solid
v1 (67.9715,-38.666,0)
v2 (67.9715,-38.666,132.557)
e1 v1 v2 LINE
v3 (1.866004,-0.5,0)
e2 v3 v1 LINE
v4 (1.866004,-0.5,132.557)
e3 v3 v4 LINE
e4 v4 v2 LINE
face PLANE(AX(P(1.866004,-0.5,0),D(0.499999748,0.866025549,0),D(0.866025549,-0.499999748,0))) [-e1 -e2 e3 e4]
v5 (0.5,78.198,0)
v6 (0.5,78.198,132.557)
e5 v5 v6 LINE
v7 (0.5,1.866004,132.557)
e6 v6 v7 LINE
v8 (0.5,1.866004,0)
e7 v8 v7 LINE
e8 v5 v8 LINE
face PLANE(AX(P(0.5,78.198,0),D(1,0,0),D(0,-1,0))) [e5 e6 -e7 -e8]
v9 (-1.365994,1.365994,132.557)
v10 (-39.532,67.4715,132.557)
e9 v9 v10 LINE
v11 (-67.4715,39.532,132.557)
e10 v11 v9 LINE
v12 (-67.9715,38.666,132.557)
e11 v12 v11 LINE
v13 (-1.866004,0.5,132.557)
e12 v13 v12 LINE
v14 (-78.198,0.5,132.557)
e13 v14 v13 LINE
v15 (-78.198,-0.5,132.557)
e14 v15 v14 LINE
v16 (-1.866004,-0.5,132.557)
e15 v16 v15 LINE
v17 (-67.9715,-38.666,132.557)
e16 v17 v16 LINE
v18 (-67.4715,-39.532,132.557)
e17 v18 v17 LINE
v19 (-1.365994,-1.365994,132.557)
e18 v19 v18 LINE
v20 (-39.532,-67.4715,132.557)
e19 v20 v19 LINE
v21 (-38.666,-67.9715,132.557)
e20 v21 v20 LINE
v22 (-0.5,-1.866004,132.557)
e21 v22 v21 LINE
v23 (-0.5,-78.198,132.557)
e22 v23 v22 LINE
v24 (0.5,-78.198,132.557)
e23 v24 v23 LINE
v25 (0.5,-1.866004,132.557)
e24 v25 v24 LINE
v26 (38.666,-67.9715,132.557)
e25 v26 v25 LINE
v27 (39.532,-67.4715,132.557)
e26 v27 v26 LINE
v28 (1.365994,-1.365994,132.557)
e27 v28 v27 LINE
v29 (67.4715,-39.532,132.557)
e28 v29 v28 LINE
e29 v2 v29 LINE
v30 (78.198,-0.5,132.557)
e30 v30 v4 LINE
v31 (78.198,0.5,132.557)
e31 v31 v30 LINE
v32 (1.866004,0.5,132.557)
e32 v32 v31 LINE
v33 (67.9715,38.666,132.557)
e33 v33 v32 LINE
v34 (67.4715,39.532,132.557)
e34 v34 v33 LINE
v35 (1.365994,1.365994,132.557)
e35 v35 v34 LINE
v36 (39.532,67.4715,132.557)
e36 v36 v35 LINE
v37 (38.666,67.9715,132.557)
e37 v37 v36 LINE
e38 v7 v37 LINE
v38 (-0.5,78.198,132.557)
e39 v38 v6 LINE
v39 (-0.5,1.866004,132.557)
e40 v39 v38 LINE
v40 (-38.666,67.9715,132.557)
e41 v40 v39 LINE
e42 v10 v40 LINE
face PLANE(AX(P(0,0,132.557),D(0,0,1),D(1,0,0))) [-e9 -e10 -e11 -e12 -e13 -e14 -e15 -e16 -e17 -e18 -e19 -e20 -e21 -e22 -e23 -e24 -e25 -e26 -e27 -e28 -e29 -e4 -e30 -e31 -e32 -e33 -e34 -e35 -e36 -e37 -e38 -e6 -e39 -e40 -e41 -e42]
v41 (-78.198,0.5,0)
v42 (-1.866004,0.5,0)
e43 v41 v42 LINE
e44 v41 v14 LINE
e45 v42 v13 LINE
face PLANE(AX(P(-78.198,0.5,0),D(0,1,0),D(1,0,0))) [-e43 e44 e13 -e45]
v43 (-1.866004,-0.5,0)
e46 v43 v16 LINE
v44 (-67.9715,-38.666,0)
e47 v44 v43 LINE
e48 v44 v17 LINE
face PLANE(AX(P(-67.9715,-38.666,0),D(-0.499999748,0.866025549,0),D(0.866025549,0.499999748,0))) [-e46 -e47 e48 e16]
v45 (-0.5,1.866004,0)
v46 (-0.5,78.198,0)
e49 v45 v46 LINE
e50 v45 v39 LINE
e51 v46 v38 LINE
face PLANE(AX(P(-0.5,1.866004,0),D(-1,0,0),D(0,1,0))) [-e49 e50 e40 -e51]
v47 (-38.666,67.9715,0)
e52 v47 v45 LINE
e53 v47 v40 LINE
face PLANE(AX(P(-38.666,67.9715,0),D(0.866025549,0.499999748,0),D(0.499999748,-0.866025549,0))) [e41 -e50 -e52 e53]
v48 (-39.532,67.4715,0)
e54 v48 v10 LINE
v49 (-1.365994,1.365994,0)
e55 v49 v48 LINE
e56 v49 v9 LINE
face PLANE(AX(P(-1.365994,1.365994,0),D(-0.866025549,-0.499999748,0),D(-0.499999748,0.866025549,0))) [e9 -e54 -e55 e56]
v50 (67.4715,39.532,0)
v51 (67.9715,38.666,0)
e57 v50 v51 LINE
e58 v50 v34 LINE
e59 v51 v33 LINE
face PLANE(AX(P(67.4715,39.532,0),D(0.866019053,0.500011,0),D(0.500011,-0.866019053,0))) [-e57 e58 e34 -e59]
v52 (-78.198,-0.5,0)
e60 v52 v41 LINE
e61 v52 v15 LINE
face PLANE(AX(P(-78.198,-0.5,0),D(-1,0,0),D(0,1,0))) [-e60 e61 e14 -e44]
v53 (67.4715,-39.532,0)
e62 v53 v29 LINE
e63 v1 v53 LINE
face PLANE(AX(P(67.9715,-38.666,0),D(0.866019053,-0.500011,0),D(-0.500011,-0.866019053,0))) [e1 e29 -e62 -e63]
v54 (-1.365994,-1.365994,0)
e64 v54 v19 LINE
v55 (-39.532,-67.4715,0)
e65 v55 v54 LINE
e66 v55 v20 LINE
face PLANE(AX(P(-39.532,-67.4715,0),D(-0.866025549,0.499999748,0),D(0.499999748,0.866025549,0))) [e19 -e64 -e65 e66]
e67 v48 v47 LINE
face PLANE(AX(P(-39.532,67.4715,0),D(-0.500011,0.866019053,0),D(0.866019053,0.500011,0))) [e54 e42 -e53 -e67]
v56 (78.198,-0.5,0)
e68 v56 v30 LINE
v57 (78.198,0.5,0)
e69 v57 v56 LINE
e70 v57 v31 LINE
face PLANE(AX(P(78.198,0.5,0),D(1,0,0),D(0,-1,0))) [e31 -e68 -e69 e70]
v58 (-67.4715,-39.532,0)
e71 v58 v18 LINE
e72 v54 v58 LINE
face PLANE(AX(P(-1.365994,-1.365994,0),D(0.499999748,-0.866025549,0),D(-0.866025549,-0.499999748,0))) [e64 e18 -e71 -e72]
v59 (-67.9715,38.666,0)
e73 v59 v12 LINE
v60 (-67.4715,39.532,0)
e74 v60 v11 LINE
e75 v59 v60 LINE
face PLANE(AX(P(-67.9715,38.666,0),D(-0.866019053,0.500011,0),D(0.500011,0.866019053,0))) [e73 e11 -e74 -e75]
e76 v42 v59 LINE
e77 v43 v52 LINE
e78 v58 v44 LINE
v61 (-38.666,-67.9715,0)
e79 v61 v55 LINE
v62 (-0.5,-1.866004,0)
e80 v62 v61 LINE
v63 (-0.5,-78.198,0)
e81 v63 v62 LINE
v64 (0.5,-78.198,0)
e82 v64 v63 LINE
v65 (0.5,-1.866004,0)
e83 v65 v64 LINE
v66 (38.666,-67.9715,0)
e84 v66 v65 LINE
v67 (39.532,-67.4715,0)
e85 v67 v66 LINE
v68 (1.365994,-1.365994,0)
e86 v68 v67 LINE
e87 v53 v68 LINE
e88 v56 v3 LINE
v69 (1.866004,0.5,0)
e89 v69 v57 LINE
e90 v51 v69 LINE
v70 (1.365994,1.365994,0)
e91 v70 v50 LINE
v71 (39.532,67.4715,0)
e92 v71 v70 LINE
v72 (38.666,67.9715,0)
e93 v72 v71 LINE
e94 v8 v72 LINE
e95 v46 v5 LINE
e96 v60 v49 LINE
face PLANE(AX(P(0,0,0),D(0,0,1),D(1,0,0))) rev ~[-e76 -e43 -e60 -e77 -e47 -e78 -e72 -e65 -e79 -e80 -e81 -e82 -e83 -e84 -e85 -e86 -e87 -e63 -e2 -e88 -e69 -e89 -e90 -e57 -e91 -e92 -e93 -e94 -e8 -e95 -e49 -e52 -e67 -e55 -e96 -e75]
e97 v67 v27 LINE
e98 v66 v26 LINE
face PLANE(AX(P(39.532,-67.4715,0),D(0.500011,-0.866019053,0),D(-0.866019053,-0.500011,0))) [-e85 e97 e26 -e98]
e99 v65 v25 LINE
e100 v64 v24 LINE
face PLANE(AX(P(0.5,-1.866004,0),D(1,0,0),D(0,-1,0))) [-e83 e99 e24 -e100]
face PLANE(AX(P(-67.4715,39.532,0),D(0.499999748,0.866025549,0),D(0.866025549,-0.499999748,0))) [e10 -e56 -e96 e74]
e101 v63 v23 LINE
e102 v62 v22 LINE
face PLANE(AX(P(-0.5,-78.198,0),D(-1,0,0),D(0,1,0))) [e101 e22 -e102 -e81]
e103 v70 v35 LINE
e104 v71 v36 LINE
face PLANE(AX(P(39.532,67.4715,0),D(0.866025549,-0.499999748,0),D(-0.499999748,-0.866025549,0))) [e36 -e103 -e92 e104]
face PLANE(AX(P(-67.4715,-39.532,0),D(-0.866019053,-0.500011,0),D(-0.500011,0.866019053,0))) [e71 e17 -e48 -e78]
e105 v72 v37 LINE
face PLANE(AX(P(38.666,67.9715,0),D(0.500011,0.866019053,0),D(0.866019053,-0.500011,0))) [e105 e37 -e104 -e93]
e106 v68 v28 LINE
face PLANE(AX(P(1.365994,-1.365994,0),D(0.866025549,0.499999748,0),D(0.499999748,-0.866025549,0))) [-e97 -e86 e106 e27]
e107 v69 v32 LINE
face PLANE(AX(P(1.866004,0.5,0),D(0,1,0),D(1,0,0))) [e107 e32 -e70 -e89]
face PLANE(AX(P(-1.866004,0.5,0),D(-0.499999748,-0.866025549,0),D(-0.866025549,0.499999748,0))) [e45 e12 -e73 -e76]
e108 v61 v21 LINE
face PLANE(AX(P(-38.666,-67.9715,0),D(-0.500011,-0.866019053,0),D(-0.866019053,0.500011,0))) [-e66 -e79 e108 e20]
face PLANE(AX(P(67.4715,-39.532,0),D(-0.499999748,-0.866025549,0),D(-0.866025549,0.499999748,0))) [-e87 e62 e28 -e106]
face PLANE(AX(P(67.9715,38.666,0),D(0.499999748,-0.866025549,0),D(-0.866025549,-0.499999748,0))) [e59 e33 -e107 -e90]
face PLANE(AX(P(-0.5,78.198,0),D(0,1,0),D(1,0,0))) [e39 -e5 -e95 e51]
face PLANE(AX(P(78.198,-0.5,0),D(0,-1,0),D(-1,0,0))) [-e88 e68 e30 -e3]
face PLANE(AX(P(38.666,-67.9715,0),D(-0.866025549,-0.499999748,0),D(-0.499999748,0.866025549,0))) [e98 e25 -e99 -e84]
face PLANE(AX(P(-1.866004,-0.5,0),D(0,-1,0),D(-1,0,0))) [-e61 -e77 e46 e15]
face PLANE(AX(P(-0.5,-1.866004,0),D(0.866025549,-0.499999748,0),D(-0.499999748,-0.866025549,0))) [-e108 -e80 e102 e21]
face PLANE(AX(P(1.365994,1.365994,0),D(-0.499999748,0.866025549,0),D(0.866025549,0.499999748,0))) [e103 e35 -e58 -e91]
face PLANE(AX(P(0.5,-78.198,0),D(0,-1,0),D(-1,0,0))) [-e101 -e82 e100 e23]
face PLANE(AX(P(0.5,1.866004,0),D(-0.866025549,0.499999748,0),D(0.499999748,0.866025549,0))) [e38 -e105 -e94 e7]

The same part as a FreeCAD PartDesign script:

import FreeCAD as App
import Part
import Sketcher

V = App.Vector
Q = App.Units.Quantity

doc = App.newDocument("Part")
body = doc.addObject("PartDesign::Body", "Body")

sketch1 = doc.addObject("Sketcher::SketchObject", "Sketch")
body.addObject(sketch1)
sketch1.AttachmentSupport = (doc.XY_Plane, [""])
sketch1.MapMode = "FlatFace"
sketch1.addGeometry(Part.LineSegment(V(-1.9, 0.5, 0), V(-78.2, 0.5, 0)), False)
sketch1.addGeometry(Part.LineSegment(V(-78.2, 0.5, 0), V(-78.2, -0.5, 0)), False)
sketch1.addGeometry(Part.LineSegment(V(-78.2, -0.5, 0), V(-1.9, -0.5, 0)), False)
sketch1.addGeometry(Part.LineSegment(V(-1.9, -0.5, 0), V(-68, -38.7, 0)), False)
sketch1.addGeometry(Part.LineSegment(V(-68, -38.7, 0), V(-67.5, -39.5, 0)), False)
sketch1.addGeometry(Part.LineSegment(V(-67.5, -39.5, 0), V(-1.4, -1.4, 0)), False)
sketch1.addGeometry(Part.LineSegment(V(-1.4, -1.4, 0), V(-39.5, -67.5, 0)), False)
sketch1.addGeometry(Part.LineSegment(V(-39.5, -67.5, 0), V(-38.7, -68, 0)), False)
sketch1.addGeometry(Part.LineSegment(V(-38.7, -68, 0), V(-0.5, -1.9, 0)), False)
sketch1.addGeometry(Part.LineSegment(V(-0.5, -1.9, 0), V(-0.5, -78.2, 0)), False)
sketch1.addGeometry(Part.LineSegment(V(-0.5, -78.2, 0), V(0.5, -78.2, 0)), False)
sketch1.addGeometry(Part.LineSegment(V(0.5, -78.2, 0), V(0.5, -1.9, 0)), False)
sketch1.addGeometry(Part.LineSegment(V(0.5, -1.9, 0), V(38.7, -68, 0)), False)
sketch1.addGeometry(Part.LineSegment(V(38.7, -68, 0), V(39.5, -67.5, 0)), False)
sketch1.addGeometry(Part.LineSegment(V(39.5, -67.5, 0), V(1.4, -1.4, 0)), False)
sketch1.addGeometry(Part.LineSegment(V(1.4, -1.4, 0), V(67.5, -39.5, 0)), False)
sketch1.addGeometry(Part.LineSegment(V(67.5, -39.5, 0), V(68, -38.7, 0)), False)
sketch1.addGeometry(Part.LineSegment(V(68, -38.7, 0), V(1.9, -0.5, 0)), False)
sketch1.addGeometry(Part.LineSegment(V(1.9, -0.5, 0), V(78.2, -0.5, 0)), False)
sketch1.addGeometry(Part.LineSegment(V(78.2, -0.5, 0), V(78.2, 0.5, 0)), False)
sketch1.addGeometry(Part.LineSegment(V(78.2, 0.5, 0), V(1.9, 0.5, 0)), False)
sketch1.addGeometry(Part.LineSegment(V(1.9, 0.5, 0), V(68, 38.7, 0)), False)
sketch1.addGeometry(Part.LineSegment(V(68, 38.7, 0), V(67.5, 39.5, 0)), False)
sketch1.addGeometry(Part.LineSegment(V(67.5, 39.5, 0), V(1.4, 1.4, 0)), False)
sketch1.addGeometry(Part.LineSegment(V(1.4, 1.4, 0), V(39.5, 67.5, 0)), False)
sketch1.addGeometry(Part.LineSegment(V(39.5, 67.5, 0), V(38.7, 68, 0)), False)
sketch1.addGeometry(Part.LineSegment(V(38.7, 68, 0), V(0.5, 1.9, 0)), False)
sketch1.addGeometry(Part.LineSegment(V(0.5, 1.9, 0), V(0.5, 78.2, 0)), False)
sketch1.addGeometry(Part.LineSegment(V(0.5, 78.2, 0), V(-0.5, 78.2, 0)), False)
sketch1.addGeometry(Part.LineSegment(V(-0.5, 78.2, 0), V(-0.5, 1.9, 0)), False)
sketch1.addGeometry(Part.LineSegment(V(-0.5, 1.9, 0), V(-38.7, 68, 0)), False)
sketch1.addGeometry(Part.LineSegment(V(-38.7, 68, 0), V(-39.5, 67.5, 0)), False)
sketch1.addGeometry(Part.LineSegment(V(-39.5, 67.5, 0), V(-1.4, 1.4, 0)), False)
sketch1.addGeometry(Part.LineSegment(V(-1.4, 1.4, 0), V(-67.5, 39.5, 0)), False)
sketch1.addGeometry(Part.LineSegment(V(-67.5, 39.5, 0), V(-68, 38.7, 0)), False)
sketch1.addGeometry(Part.LineSegment(V(-68, 38.7, 0), V(-1.9, 0.5, 0)), False)
sketch1.addConstraint(Sketcher.Constraint("Coincident", 0, 2, 1, 1))
sketch1.addConstraint(Sketcher.Constraint("Coincident", 1, 2, 2, 1))
sketch1.addConstraint(Sketcher.Constraint("Coincident", 2, 2, 3, 1))
sketch1.addConstraint(Sketcher.Constraint("Coincident", 3, 2, 4, 1))
sketch1.addConstraint(Sketcher.Constraint("Coincident", 4, 2, 5, 1))
sketch1.addConstraint(Sketcher.Constraint("Coincident", 5, 2, 6, 1))
sketch1.addConstraint(Sketcher.Constraint("Coincident", 6, 2, 7, 1))
sketch1.addConstraint(Sketcher.Constraint("Coincident", 7, 2, 8, 1))
sketch1.addConstraint(Sketcher.Constraint("Coincident", 8, 2, 9, 1))
sketch1.addConstraint(Sketcher.Constraint("Coincident", 9, 2, 10, 1))
sketch1.addConstraint(Sketcher.Constraint("Coincident", 10, 2, 11, 1))
sketch1.addConstraint(Sketcher.Constraint("Coincident", 11, 2, 12, 1))
sketch1.addConstraint(Sketcher.Constraint("Coincident", 12, 2, 13, 1))
sketch1.addConstraint(Sketcher.Constraint("Coincident", 13, 2, 14, 1))
sketch1.addConstraint(Sketcher.Constraint("Coincident", 14, 2, 15, 1))
sketch1.addConstraint(Sketcher.Constraint("Coincident", 15, 2, 16, 1))
sketch1.addConstraint(Sketcher.Constraint("Coincident", 16, 2, 17, 1))
sketch1.addConstraint(Sketcher.Constraint("Coincident", 17, 2, 18, 1))
sketch1.addConstraint(Sketcher.Constraint("Coincident", 18, 2, 19, 1))
sketch1.addConstraint(Sketcher.Constraint("Coincident", 19, 2, 20, 1))
sketch1.addConstraint(Sketcher.Constraint("Coincident", 20, 2, 21, 1))
sketch1.addConstraint(Sketcher.Constraint("Coincident", 21, 2, 22, 1))
sketch1.addConstraint(Sketcher.Constraint("Coincident", 22, 2, 23, 1))
sketch1.addConstraint(Sketcher.Constraint("Coincident", 23, 2, 24, 1))
sketch1.addConstraint(Sketcher.Constraint("Coincident", 24, 2, 25, 1))
sketch1.addConstraint(Sketcher.Constraint("Coincident", 25, 2, 26, 1))
sketch1.addConstraint(Sketcher.Constraint("Coincident", 26, 2, 27, 1))
sketch1.addConstraint(Sketcher.Constraint("Coincident", 27, 2, 28, 1))
sketch1.addConstraint(Sketcher.Constraint("Coincident", 28, 2, 29, 1))
sketch1.addConstraint(Sketcher.Constraint("Coincident", 29, 2, 30, 1))
sketch1.addConstraint(Sketcher.Constraint("Coincident", 30, 2, 31, 1))
sketch1.addConstraint(Sketcher.Constraint("Coincident", 31, 2, 32, 1))
sketch1.addConstraint(Sketcher.Constraint("Coincident", 32, 2, 33, 1))
sketch1.addConstraint(Sketcher.Constraint("Coincident", 33, 2, 34, 1))
sketch1.addConstraint(Sketcher.Constraint("Coincident", 34, 2, 35, 1))
sketch1.addConstraint(Sketcher.Constraint("Coincident", 35, 2, 0, 1))
sketch1.addConstraint(Sketcher.Constraint("Horizontal", 0))
sketch1.addConstraint(Sketcher.Constraint("Vertical", 1))
sketch1.addConstraint(Sketcher.Constraint("Horizontal", 2))
sketch1.addConstraint(Sketcher.Constraint("Vertical", 9))
sketch1.addConstraint(Sketcher.Constraint("Horizontal", 10))
sketch1.addConstraint(Sketcher.Constraint("Vertical", 11))
sketch1.addConstraint(Sketcher.Constraint("Horizontal", 18))
sketch1.addConstraint(Sketcher.Constraint("Vertical", 19))
sketch1.addConstraint(Sketcher.Constraint("Horizontal", 20))
sketch1.addConstraint(Sketcher.Constraint("Vertical", 27))
sketch1.addConstraint(Sketcher.Constraint("Horizontal", 28))
sketch1.addConstraint(Sketcher.Constraint("Vertical", 29))
sketch1.addConstraint(Sketcher.Constraint("Symmetric", 0, 2, 18, 2, -1, 1))
sketch1.addConstraint(Sketcher.Constraint("Symmetric", 2, 2, 20, 2, -1, 1))
sketch1.addConstraint(Sketcher.Constraint("Symmetric", 3, 2, 21, 2, -1, 1))
sketch1.addConstraint(Sketcher.Constraint("Symmetric", 4, 2, 22, 2, -1, 1))
sketch1.addConstraint(Sketcher.Constraint("Symmetric", 5, 2, 23, 2, -1, 1))
sketch1.addConstraint(Sketcher.Constraint("Symmetric", 6, 2, 24, 2, -1, 1))
sketch1.addConstraint(Sketcher.Constraint("Symmetric", 7, 2, 25, 2, -1, 1))
sketch1.addConstraint(Sketcher.Constraint("Symmetric", 8, 2, 26, 2, -1, 1))
sketch1.addConstraint(Sketcher.Constraint("Symmetric", 10, 2, 28, 2, -1, 1))
sketch1.addConstraint(Sketcher.Constraint("Symmetric", 12, 2, 30, 2, -1, 1))
sketch1.addConstraint(Sketcher.Constraint("Symmetric", 13, 2, 31, 2, -1, 1))
sketch1.addConstraint(Sketcher.Constraint("Symmetric", 14, 2, 32, 2, -1, 1))
sketch1.addConstraint(Sketcher.Constraint("Symmetric", 15, 2, 33, 2, -1, 1))
sketch1.addConstraint(Sketcher.Constraint("Symmetric", 16, 2, 34, 2, -1, 1))
sketch1.addConstraint(Sketcher.Constraint("Symmetric", 8, 2, 11, 2, -2))
sketch1.addConstraint(Sketcher.Constraint("Symmetric", 7, 2, 12, 2, -2))
sketch1.addConstraint(Sketcher.Constraint("Symmetric", 6, 2, 13, 2, -2))
sketch1.addConstraint(Sketcher.Constraint("Symmetric", 5, 2, 14, 2, -2))
sketch1.addConstraint(Sketcher.Constraint("Symmetric", 4, 2, 15, 2, -2))
sketch1.addConstraint(Sketcher.Constraint("Symmetric", 3, 2, 16, 2, -2))
sketch1.addConstraint(Sketcher.Constraint("Symmetric", 2, 2, 17, 2, -2))
sketch1.addConstraint(Sketcher.Constraint("Perpendicular", 3, 4))
sketch1.addConstraint(Sketcher.Constraint("Perpendicular", 4, 5))
sketch1.addConstraint(Sketcher.Constraint("Perpendicular", 6, 7))
sketch1.addConstraint(Sketcher.Constraint("Perpendicular", 7, 8))
sketch1.addConstraint(Sketcher.Constraint("Perpendicular", 5, 12))
sketch1.addConstraint(Sketcher.Constraint("Perpendicular", 23, 30))
sketch1.addConstraint(Sketcher.Constraint("Perpendicular", 34, 35))
sketch1.addConstraint(Sketcher.Constraint("Equal", 28, 1))
sketch1.addConstraint(Sketcher.Constraint("Equal", 20, 9))
sketch1.addConstraint(Sketcher.Constraint("Equal", 3, 5))
sketch1.addConstraint(Sketcher.Constraint("Equal", 5, 6))
sketch1.addConstraint(Sketcher.Constraint("Equal", 4, 7))
sketch1.addConstraint(Sketcher.Constraint("Equal", 6, 8))
sketch1.addConstraint(Sketcher.Constraint("DistanceX", 10, 1, 10, 2, Q("1 mm")))
sketch1.addConstraint(Sketcher.Constraint("Distance", 4, Q("1 mm")))
sketch1.addConstraint(Sketcher.Constraint("Angle", 3, Q("-150 deg")))
sketch1.addConstraint(Sketcher.Constraint("DistanceY", 3, 2, 5, 2, Q("37.3 mm")))
sketch1.addConstraint(Sketcher.Constraint("DistanceX", 0, 2, 0, 1, Q("76.332 mm")))
pad1 = doc.addObject("PartDesign::Pad", "Pad")
body.addObject(pad1)
pad1.Profile = sketch1
pad1.Length = 132.557

doc.recompute()
